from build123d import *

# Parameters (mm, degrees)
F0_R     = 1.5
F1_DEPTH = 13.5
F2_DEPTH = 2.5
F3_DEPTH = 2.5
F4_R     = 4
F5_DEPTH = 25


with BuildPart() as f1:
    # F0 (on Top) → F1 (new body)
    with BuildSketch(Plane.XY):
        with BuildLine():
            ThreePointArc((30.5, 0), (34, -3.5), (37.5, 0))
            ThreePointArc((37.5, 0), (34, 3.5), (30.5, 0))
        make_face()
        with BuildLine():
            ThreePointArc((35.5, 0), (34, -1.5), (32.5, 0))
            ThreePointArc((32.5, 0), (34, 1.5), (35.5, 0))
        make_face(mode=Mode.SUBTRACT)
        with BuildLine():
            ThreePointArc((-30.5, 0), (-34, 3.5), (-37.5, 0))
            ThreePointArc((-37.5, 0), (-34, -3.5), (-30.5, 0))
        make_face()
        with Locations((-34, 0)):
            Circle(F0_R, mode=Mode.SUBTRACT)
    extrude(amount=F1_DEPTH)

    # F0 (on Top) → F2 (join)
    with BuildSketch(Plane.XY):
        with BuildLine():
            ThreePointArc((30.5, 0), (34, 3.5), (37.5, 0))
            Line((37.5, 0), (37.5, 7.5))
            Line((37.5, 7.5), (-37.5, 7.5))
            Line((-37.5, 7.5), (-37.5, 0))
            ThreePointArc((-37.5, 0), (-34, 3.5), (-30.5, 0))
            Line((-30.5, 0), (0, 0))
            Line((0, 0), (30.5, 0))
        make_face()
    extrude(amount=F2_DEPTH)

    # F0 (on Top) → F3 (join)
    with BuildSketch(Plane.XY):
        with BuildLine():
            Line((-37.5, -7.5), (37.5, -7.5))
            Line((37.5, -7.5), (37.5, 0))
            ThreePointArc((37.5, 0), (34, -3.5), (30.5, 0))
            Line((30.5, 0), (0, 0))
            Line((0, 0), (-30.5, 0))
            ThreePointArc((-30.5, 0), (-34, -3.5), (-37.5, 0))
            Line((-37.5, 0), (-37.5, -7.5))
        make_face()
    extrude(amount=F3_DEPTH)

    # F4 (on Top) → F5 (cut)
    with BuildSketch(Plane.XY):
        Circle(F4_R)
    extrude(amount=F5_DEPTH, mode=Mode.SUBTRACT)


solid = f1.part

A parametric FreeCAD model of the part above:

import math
import FreeCAD as App
import Part
import Sketcher
Q = App.Units.Quantity

doc = App.newDocument("Part")
params = doc.addObject("Spreadsheet::Sheet", "Params")
for row, (alias, value) in enumerate([
    ("sketch1_diameter", "7 mm"),
    ("sketch1_diameter2", "3 mm"),
    ("pad1_length", "13.5 mm"),
    ("sketch2_radius", "3.5 mm"),
    ("sketch2_width", "75 mm"),
    ("sketch2_height", "7.5 mm"),
    ("pad2_length", "2.5 mm"),
    ("sketch3_radius", "3.5 mm"),
    ("sketch3_width", "75 mm"),
    ("sketch3_height", "7.5 mm"),
    ("pad3_length", "2.5 mm"),
    ("sketch4_diameter", "8 mm"),
    ("pocket1_length", "25 mm"),
], start=1):
    params.set(f"A{row}", alias)
    params.set(f"B{row}", "=" + value)
    params.setAlias(f"B{row}", alias)

body = doc.addObject("PartDesign::Body", "Body")
body.AllowCompound = True

# Sketch on XY plane
sketch1 = body.newObject("Sketcher::SketchObject", "Sketch")
sketch1.AttachmentSupport = (doc.getObject("XY_Plane"), [""])
sketch1.MapMode = "FlatFace"
sketch1.addGeometry([
    Part.Circle(App.Vector(34, 0, 0), App.Vector(0, 0, 1), 3.5),
    Part.Circle(App.Vector(34, 0, 0), App.Vector(0, 0, 1), 1.5),
    Part.Circle(App.Vector(-34, 0, 0), App.Vector(0, 0, 1), 3.5),
    Part.Circle(App.Vector(-34, 0, 0), App.Vector(0, 0, 1), 1.5),
], False)
sketch1.addConstraint([
    Sketcher.Constraint("Coincident", 1, 3, 0, 3),
    Sketcher.Constraint("Coincident", 3, 3, 2, 3),
    Sketcher.Constraint("Equal", 0, 2),
    Sketcher.Constraint("Equal", 1, 3),
    Sketcher.Constraint("Symmetric", 0, 3, 2, 3, -1, 1),
    Sketcher.Constraint("PointOnObject", 0, 3, -1),
    Sketcher.Constraint("Diameter", 0, Q("7 mm")),
    Sketcher.Constraint("Diameter", 1, Q("3 mm")),
    Sketcher.Constraint("DistanceX", -1, 1, 0, 3, Q("34 mm")),
])
sketch1.setExpression("Constraints[6]", "Params.sketch1_diameter")
sketch1.setExpression("Constraints[7]", "Params.sketch1_diameter2")
pad1 = body.newObject("PartDesign::Pad", "Pad")
pad1.Profile = sketch1
pad1.setExpression("Length", "Params.pad1_length")

# Sketch on XY plane
sketch2 = body.newObject("Sketcher::SketchObject", "Sketch001")
sketch2.AttachmentSupport = (doc.getObject("XY_Plane"), [""])
sketch2.MapMode = "FlatFace"
sketch2.addGeometry([
    Part.ArcOfCircle(Part.Circle(App.Vector(34, 0, 0), App.Vector(0, 0, 1), 3.5), math.radians(0), math.radians(180)),  # 0
    Part.LineSegment(App.Vector(37.5, 0, 0), App.Vector(37.5, 7.5, 0)),  # 1
    Part.LineSegment(App.Vector(37.5, 7.5, 0), App.Vector(-37.5, 7.5, 0)),  # 2
    Part.LineSegment(App.Vector(-37.5, 7.5, 0), App.Vector(-37.5, 0, 0)),  # 3
    Part.ArcOfCircle(Part.Circle(App.Vector(-34, 0, 0), App.Vector(0, 0, 1), 3.5), math.radians(0), math.radians(180)),  # 4
    Part.LineSegment(App.Vector(-30.5, 0, 0), App.Vector(30.5, 0, 0)),  # 5
], False)
sketch2.addConstraint([
    Sketcher.Constraint("Tangent", 0, 1, 1, 1),
    Sketcher.Constraint("Coincident", 1, 2, 2, 1),
    Sketcher.Constraint("Coincident", 2, 2, 3, 1),
    Sketcher.Constraint("Tangent", 3, 2, 4, 2),
    Sketcher.Constraint("Coincident", 4, 1, 5, 1),
    Sketcher.Constraint("Coincident", 5, 2, 0, 2),
    Sketcher.Constraint("Vertical", 1),
    Sketcher.Constraint("Horizontal", 2),
    Sketcher.Constraint("Vertical", 3),
    Sketcher.Constraint("Horizontal", 5),
    Sketcher.Constraint("Equal", 0, 4),
    Sketcher.Constraint("Symmetric", 0, 3, 4, 3, -1, 1),
    Sketcher.Constraint("PointOnObject", 0, 3, -1),
    Sketcher.Constraint("PointOnObject", 4, 1, -1),
    Sketcher.Constraint("Radius", 0, Q("3.5 mm")),
    Sketcher.Constraint("DistanceX", 2, 2, 2, 1, Q("75 mm")),
    Sketcher.Constraint("DistanceY", 1, 1, 1, 2, Q("7.5 mm")),
])
sketch2.setExpression("Constraints[14]", "Params.sketch2_radius")
sketch2.setExpression("Constraints[15]", "Params.sketch2_width")
sketch2.setExpression("Constraints[16]", "Params.sketch2_height")
pad2 = body.newObject("PartDesign::Pad", "Pad001")
pad2.Profile = sketch2
pad2.setExpression("Length", "Params.pad2_length")

# Sketch on XY plane
sketch3 = body.newObject("Sketcher::SketchObject", "Sketch002")
sketch3.AttachmentSupport = (doc.getObject("XY_Plane"), [""])
sketch3.MapMode = "FlatFace"
sketch3.addGeometry([
    Part.LineSegment(App.Vector(-37.5, -7.5, 0), App.Vector(37.5, -7.5, 0)),  # 0
    Part.LineSegment(App.Vector(37.5, -7.5, 0), App.Vector(37.5, 0, 0)),  # 1
    Part.ArcOfCircle(Part.Circle(App.Vector(34, 0, 0), App.Vector(0, 0, 1), 3.5), math.radians(180), math.radians(360)),  # 2
    Part.LineSegment(App.Vector(30.5, 0, 0), App.Vector(-30.5, 0, 0)),  # 3
    Part.ArcOfCircle(Part.Circle(App.Vector(-34, 0, 0), App.Vector(0, 0, 1), 3.5), math.radians(180), math.radians(360)),  # 4
    Part.LineSegment(App.Vector(-37.5, 0, 0), App.Vector(-37.5, -7.5, 0)),  # 5
], False)
sketch3.addConstraint([
    Sketcher.Constraint("Coincident", 0, 2, 1, 1),
    Sketcher.Constraint("Tangent", 1, 2, 2, 2),
    Sketcher.Constraint("Coincident", 2, 1, 3, 1),
    Sketcher.Constraint("Coincident", 3, 2, 4, 2),
    Sketcher.Constraint("Tangent", 4, 1, 5, 1),
    Sketcher.Constraint("Coincident", 5, 2, 0, 1),
    Sketcher.Constraint("Horizontal", 0),
    Sketcher.Constraint("Vertical", 1),
    Sketcher.Constraint("Horizontal", 3),
    Sketcher.Constraint("Vertical", 5),
    Sketcher.Constraint("Equal", 2, 4),
    Sketcher.Constraint("Symmetric", 2, 3, 4, 3, -1, 1),
    Sketcher.Constraint("PointOnObject", 2, 3, -1),
    Sketcher.Constraint("PointOnObject", 2, 1, -1),
    Sketcher.Constraint("Radius", 2, Q("3.5 mm")),
    Sketcher.Constraint("DistanceX", 0, 1, 0, 2, Q("75 mm")),
    Sketcher.Constraint("DistanceY", 1, 1, 1, 2, Q("7.5 mm")),
])
sketch3.setExpression("Constraints[14]", "Params.sketch3_radius")
sketch3.setExpression("Constraints[15]", "Params.sketch3_width")
sketch3.setExpression("Constraints[16]", "Params.sketch3_height")
pad3 = body.newObject("PartDesign::Pad", "Pad002")
pad3.Profile = sketch3
pad3.setExpression("Length", "Params.pad3_length")

# Sketch on XY plane
sketch4 = body.newObject("Sketcher::SketchObject", "Sketch003")
sketch4.AttachmentSupport = (doc.getObject("XY_Plane"), [""])
sketch4.MapMode = "FlatFace"
sketch4.addGeometry(Part.Circle(App.Vector(0, 0, 0), App.Vector(0, 0, 1), 4), False)
sketch4.addConstraint([
    Sketcher.Constraint("Coincident", 0, 3, -1, 1),
    Sketcher.Constraint("Diameter", 0, Q("8 mm")),
])
sketch4.setExpression("Constraints[1]", "Params.sketch4_diameter")
pocket1 = body.newObject("PartDesign::Pocket", "Pocket")
pocket1.Profile = sketch4
pocket1.setExpression("Length", "Params.pocket1_length")
pocket1.Reversed = True

doc.recompute()
